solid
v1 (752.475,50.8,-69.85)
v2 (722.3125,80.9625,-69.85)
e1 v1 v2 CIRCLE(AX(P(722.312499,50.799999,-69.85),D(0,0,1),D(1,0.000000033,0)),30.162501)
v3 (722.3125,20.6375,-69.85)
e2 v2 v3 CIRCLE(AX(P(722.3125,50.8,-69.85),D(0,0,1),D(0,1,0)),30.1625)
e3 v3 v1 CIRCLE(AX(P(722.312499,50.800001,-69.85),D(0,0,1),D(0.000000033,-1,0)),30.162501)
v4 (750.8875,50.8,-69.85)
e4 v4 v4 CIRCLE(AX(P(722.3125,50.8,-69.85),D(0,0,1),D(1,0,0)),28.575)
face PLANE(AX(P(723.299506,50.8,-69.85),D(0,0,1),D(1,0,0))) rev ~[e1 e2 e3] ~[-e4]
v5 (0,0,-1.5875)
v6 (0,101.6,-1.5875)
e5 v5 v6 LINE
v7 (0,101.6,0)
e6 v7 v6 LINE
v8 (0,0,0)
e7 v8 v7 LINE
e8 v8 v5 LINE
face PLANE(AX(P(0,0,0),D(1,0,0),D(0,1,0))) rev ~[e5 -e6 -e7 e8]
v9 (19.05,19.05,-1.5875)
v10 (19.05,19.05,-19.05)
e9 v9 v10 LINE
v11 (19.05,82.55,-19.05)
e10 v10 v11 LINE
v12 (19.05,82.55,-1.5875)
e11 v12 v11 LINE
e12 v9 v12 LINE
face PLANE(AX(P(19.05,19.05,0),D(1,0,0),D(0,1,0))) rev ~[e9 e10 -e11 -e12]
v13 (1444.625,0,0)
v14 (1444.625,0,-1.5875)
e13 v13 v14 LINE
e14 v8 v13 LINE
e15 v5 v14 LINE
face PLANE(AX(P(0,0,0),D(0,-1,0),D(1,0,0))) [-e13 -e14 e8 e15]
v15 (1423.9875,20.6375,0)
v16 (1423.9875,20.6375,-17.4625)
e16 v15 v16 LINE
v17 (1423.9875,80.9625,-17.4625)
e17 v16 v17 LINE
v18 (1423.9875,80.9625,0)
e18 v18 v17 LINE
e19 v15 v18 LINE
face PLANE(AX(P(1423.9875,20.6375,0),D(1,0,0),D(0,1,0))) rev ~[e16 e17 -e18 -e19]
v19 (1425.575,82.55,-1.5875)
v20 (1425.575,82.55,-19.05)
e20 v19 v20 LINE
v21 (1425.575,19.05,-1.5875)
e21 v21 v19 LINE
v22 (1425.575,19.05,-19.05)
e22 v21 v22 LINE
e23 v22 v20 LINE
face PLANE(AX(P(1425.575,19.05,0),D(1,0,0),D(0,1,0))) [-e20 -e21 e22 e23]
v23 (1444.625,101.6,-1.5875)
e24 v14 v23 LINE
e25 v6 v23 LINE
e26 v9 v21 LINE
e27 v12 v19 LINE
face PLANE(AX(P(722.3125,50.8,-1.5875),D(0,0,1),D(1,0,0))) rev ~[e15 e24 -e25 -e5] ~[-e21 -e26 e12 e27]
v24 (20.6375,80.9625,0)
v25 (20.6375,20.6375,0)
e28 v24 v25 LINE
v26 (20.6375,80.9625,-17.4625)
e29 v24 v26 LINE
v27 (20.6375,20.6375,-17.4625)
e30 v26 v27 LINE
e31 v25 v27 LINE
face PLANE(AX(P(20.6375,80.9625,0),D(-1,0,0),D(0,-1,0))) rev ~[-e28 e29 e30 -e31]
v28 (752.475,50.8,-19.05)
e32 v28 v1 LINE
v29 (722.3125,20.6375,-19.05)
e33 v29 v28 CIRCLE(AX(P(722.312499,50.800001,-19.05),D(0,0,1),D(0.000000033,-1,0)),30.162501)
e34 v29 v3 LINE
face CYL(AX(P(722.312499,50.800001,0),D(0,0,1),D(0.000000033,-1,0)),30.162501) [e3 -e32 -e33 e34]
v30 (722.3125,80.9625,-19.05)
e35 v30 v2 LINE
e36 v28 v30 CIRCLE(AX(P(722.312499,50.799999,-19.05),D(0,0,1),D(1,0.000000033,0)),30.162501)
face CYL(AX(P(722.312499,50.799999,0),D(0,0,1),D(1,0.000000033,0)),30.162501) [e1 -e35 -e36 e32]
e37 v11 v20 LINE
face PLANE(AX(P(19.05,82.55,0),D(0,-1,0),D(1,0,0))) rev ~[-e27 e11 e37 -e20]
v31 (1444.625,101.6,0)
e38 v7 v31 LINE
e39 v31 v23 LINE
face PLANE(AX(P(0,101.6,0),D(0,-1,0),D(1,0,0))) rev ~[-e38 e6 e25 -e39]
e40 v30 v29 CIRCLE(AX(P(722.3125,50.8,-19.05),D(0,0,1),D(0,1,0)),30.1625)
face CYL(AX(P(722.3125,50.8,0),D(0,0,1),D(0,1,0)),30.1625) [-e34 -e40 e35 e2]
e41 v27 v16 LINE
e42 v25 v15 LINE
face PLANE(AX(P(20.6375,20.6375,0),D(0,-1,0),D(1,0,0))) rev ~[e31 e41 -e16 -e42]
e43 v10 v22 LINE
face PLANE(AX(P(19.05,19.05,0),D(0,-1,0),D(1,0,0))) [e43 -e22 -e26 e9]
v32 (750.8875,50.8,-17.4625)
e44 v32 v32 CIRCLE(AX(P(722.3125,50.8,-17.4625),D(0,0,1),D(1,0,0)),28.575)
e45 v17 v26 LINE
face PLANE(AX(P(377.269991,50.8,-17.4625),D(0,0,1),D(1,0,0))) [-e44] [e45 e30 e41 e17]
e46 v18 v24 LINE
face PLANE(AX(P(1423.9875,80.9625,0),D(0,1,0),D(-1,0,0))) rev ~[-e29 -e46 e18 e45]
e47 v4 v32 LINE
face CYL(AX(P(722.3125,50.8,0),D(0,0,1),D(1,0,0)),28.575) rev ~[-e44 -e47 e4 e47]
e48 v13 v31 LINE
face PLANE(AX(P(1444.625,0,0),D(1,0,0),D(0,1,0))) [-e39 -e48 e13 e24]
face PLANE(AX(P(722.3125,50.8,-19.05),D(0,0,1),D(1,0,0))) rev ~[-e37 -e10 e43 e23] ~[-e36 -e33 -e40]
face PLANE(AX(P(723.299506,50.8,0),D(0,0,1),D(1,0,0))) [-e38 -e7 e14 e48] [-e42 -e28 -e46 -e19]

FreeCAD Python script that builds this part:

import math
import FreeCAD as App
import Part
import Sketcher

V = App.Vector
Q = App.Units.Quantity


def add_polygon(sketch, points):
    """Adds a closed chain of lines whose ends are joined by coincident constraints."""
    first, n = sketch.GeometryCount, len(points)
    for a, b in zip(points, points[1:] + points[:1]):
        sketch.addGeometry(Part.LineSegment(App.Vector(*a, 0), App.Vector(*b, 0)), False)
    for i in range(n):
        sketch.addConstraint(Sketcher.Constraint("Coincident", first + i, 2, first + (i + 1) % n, 1))

doc = App.newDocument("Part")
params = doc.addObject("Spreadsheet::Sheet", "Params")
for row, (alias, value) in enumerate([
    ("sketch1_height", "4 in"),
    ("sketch1_height2", "2.5 in"),
    ("sketch1_width", "56.875 in"),
    ("sketch1_width2", "55.375 in"),
    ("pad1_length", "0.0625 in"),
    ("sketch2_height", "2.5 in"),
    ("sketch2_width", "55.375 in"),
    ("pad2_length", "0.75 in"),
    ("sketch3_diameter", "2.25 in"),
    ("sketch3_radius", "1.1875 in"),
    ("pad3_length", "2.75 in"),
    ("sketch4_width", "55.25 in"),
    ("sketch4_height", "2.375 in"),
    ("pocket1_length", "0.6875 in"),
    ("sketch5_diameter", "2.25 in"),
], start=1):
    params.set(f"A{row}", alias)
    params.set(f"B{row}", "=" + value)
    params.setAlias(f"B{row}", alias)

body = doc.addObject("PartDesign::Body", "Body")

# Sketch on XY plane
sketch1 = body.newObject("Sketcher::SketchObject", "Sketch")
sketch1.AttachmentSupport = (doc.getObject("XY_Plane"), [""])
sketch1.MapMode = "FlatFace"
add_polygon(sketch1, [(0, 102), (0, 0), (1445, 0), (1445, 102)])  # lines 0-3
add_polygon(sketch1, [(1426, 19), (19, 19), (19, 83), (1426, 83)])  # lines 4-7
sketch1.addConstraint([
    Sketcher.Constraint("Vertical", 0),
    Sketcher.Constraint("Horizontal", 1),
    Sketcher.Constraint("Vertical", 2),
    Sketcher.Constraint("Horizontal", 3),
    Sketcher.Constraint("Horizontal", 4),
    Sketcher.Constraint("Vertical", 5),
    Sketcher.Constraint("Horizontal", 6),
    Sketcher.Constraint("Vertical", 7),
    Sketcher.Constraint("Coincident", 0, 2, -1, 1),
    Sketcher.Constraint("DistanceY", 0, 2, 0, 1, Q("4 in")),
    Sketcher.Constraint("DistanceY", 5, 1, 5, 2, Q("2.5 in")),
    Sketcher.Constraint("DistanceX", 1, 1, 1, 2, Q("56.875 in")),
    Sketcher.Constraint("DistanceX", 4, 2, 4, 1, Q("55.375 in")),
    Sketcher.Constraint("DistanceX", -1, 1, 4, 2, Q("0.75 in")),
    Sketcher.Constraint("DistanceY", -1, 1, 4, 2, Q("0.75 in")),
])
sketch1.setExpression("Constraints[17]", "Params.sketch1_height")
sketch1.setExpression("Constraints[18]", "Params.sketch1_height2")
sketch1.setExpression("Constraints[19]", "Params.sketch1_width")
sketch1.setExpression("Constraints[20]", "Params.sketch1_width2")
pad1 = body.newObject("PartDesign::Pad", "Pad")
pad1.Profile = sketch1
pad1.setExpression("Length", "Params.pad1_length")
pad1.Reversed = True

# Sketch on XY plane
sketch2 = body.newObject("Sketcher::SketchObject", "Sketch001")
sketch2.AttachmentSupport = (doc.getObject("XY_Plane"), [""])
sketch2.MapMode = "FlatFace"
add_polygon(sketch2, [(19, 83), (19, 19), (1426, 19), (1426, 83)])  # lines 0-3
sketch2.addConstraint([
    Sketcher.Constraint("Vertical", 0),
    Sketcher.Constraint("Horizontal", 1),
    Sketcher.Constraint("Vertical", 2),
    Sketcher.Constraint("Horizontal", 3),
    Sketcher.Constraint("DistanceY", 0, 2, 0, 1, Q("2.5 in")),
    Sketcher.Constraint("DistanceX", 1, 1, 1, 2, Q("55.375 in")),
    Sketcher.Constraint("DistanceX", -1, 1, 0, 2, Q("0.75 in")),
    Sketcher.Constraint("DistanceY", -1, 1, 0, 2, Q("0.75 in")),
])
sketch2.setExpression("Constraints[8]", "Params.sketch2_height")
sketch2.setExpression("Constraints[9]", "Params.sketch2_width")
pad2 = body.newObject("PartDesign::Pad", "Pad001")
pad2.Profile = sketch2
pad2.setExpression("Length", "Params.pad2_length")
pad2.Reversed = True

# Sketch on XY plane
sketch3 = body.newObject("Sketcher::SketchObject", "Sketch002")
sketch3.AttachmentSupport = (doc.getObject("XY_Plane"), [""])
sketch3.MapMode = "FlatFace"
sketch3.addGeometry([
    Part.ArcOfCircle(Part.Circle(V(722, 51, 0), V(0, 0, 1), 30), math.radians(-90), math.radians(0)),
    Part.ArcOfCircle(Part.Circle(V(722, 51, 0), V(0, 0, 1), 30), math.radians(0), math.radians(90)),
    Part.ArcOfCircle(Part.Circle(V(722, 51, 0), V(0, 0, 1), 30), math.radians(90), math.radians(270)),
    Part.Circle(V(722, 51, 0), V(0, 0, 1), 29),
], False)
sketch3.addConstraint([
    Sketcher.Constraint("Tangent", 0, 2, 1, 1),
    Sketcher.Constraint("Tangent", 1, 2, 2, 1),
    Sketcher.Constraint("Tangent", 2, 2, 0, 1),
    Sketcher.Constraint("Coincident", 3, 3, 0, 3),
    Sketcher.Constraint("Horizontal", 3, 3, 0, 2),
    Sketcher.Constraint("Vertical", 3, 3, 1, 2),
    Sketcher.Constraint("Vertical", 1, 2, 2, 2),
    Sketcher.Constraint("Diameter", 3, Q("2.25 in")),
    Sketcher.Constraint("DistanceY", -1, 1, 0, 3, Q("2 in")),
    Sketcher.Constraint("Radius", 0, Q("1.1875 in")),
    Sketcher.Constraint("DistanceX", -1, 1, 0, 3, Q("28.4375 in")),
])
sketch3.setExpression("Constraints[7]", "Params.sketch3_diameter")
sketch3.setExpression("Constraints[9]", "Params.sketch3_radius")
pad3 = body.newObject("PartDesign::Pad", "Pad002")
pad3.Profile = sketch3
pad3.setExpression("Length", "Params.pad3_length")
pad3.Reversed = True

# Sketch on XY plane
sketch4 = body.newObject("Sketcher::SketchObject", "Sketch003")
sketch4.AttachmentSupport = (doc.getObject("XY_Plane"), [""])
sketch4.MapMode = "FlatFace"
add_polygon(sketch4, [(21, 81), (21, 21), (1424, 21), (1424, 81)])  # lines 0-3
sketch4.addConstraint([
    Sketcher.Constraint("Vertical", 0),
    Sketcher.Constraint("Horizontal", 1),
    Sketcher.Constraint("Vertical", 2),
    Sketcher.Constraint("Horizontal", 3),
    Sketcher.Constraint("DistanceX", 1, 1, 1, 2, Q("55.25 in")),
    Sketcher.Constraint("DistanceY", 0, 2, 0, 1, Q("2.375 in")),
    Sketcher.Constraint("DistanceX", -1, 1, 0, 2, Q("0.8125 in")),
    Sketcher.Constraint("DistanceY", -1, 1, 0, 2, Q("0.8125 in")),
])
sketch4.setExpression("Constraints[8]", "Params.sketch4_width")
sketch4.setExpression("Constraints[9]", "Params.sketch4_height")
pocket1 = body.newObject("PartDesign::Pocket", "Pocket")
pocket1.Profile = sketch4
pocket1.setExpression("Length", "Params.pocket1_length")

# Sketch on XY plane
sketch5 = body.newObject("Sketcher::SketchObject", "Sketch004")
sketch5.AttachmentSupport = (doc.getObject("XY_Plane"), [""])
sketch5.MapMode = "FlatFace"
sketch5.addGeometry(Part.Circle(V(722, 51, 0), V(0, 0, 1), 29), False)
sketch5.addConstraint([
    Sketcher.Constraint("Diameter", 0, Q("2.25 in")),
    Sketcher.Constraint("DistanceY", -1, 1, 0, 3, Q("2 in")),
    Sketcher.Constraint("DistanceX", -1, 1, 0, 3, Q("28.4375 in")),
])
sketch5.setExpression("Constraints[0]", "Params.sketch5_diameter")
pocket2 = body.newObject("PartDesign::Pocket", "Pocket001")
pocket2.Profile = sketch5
pocket2.Type = "ThroughAll"

doc.recompute()
